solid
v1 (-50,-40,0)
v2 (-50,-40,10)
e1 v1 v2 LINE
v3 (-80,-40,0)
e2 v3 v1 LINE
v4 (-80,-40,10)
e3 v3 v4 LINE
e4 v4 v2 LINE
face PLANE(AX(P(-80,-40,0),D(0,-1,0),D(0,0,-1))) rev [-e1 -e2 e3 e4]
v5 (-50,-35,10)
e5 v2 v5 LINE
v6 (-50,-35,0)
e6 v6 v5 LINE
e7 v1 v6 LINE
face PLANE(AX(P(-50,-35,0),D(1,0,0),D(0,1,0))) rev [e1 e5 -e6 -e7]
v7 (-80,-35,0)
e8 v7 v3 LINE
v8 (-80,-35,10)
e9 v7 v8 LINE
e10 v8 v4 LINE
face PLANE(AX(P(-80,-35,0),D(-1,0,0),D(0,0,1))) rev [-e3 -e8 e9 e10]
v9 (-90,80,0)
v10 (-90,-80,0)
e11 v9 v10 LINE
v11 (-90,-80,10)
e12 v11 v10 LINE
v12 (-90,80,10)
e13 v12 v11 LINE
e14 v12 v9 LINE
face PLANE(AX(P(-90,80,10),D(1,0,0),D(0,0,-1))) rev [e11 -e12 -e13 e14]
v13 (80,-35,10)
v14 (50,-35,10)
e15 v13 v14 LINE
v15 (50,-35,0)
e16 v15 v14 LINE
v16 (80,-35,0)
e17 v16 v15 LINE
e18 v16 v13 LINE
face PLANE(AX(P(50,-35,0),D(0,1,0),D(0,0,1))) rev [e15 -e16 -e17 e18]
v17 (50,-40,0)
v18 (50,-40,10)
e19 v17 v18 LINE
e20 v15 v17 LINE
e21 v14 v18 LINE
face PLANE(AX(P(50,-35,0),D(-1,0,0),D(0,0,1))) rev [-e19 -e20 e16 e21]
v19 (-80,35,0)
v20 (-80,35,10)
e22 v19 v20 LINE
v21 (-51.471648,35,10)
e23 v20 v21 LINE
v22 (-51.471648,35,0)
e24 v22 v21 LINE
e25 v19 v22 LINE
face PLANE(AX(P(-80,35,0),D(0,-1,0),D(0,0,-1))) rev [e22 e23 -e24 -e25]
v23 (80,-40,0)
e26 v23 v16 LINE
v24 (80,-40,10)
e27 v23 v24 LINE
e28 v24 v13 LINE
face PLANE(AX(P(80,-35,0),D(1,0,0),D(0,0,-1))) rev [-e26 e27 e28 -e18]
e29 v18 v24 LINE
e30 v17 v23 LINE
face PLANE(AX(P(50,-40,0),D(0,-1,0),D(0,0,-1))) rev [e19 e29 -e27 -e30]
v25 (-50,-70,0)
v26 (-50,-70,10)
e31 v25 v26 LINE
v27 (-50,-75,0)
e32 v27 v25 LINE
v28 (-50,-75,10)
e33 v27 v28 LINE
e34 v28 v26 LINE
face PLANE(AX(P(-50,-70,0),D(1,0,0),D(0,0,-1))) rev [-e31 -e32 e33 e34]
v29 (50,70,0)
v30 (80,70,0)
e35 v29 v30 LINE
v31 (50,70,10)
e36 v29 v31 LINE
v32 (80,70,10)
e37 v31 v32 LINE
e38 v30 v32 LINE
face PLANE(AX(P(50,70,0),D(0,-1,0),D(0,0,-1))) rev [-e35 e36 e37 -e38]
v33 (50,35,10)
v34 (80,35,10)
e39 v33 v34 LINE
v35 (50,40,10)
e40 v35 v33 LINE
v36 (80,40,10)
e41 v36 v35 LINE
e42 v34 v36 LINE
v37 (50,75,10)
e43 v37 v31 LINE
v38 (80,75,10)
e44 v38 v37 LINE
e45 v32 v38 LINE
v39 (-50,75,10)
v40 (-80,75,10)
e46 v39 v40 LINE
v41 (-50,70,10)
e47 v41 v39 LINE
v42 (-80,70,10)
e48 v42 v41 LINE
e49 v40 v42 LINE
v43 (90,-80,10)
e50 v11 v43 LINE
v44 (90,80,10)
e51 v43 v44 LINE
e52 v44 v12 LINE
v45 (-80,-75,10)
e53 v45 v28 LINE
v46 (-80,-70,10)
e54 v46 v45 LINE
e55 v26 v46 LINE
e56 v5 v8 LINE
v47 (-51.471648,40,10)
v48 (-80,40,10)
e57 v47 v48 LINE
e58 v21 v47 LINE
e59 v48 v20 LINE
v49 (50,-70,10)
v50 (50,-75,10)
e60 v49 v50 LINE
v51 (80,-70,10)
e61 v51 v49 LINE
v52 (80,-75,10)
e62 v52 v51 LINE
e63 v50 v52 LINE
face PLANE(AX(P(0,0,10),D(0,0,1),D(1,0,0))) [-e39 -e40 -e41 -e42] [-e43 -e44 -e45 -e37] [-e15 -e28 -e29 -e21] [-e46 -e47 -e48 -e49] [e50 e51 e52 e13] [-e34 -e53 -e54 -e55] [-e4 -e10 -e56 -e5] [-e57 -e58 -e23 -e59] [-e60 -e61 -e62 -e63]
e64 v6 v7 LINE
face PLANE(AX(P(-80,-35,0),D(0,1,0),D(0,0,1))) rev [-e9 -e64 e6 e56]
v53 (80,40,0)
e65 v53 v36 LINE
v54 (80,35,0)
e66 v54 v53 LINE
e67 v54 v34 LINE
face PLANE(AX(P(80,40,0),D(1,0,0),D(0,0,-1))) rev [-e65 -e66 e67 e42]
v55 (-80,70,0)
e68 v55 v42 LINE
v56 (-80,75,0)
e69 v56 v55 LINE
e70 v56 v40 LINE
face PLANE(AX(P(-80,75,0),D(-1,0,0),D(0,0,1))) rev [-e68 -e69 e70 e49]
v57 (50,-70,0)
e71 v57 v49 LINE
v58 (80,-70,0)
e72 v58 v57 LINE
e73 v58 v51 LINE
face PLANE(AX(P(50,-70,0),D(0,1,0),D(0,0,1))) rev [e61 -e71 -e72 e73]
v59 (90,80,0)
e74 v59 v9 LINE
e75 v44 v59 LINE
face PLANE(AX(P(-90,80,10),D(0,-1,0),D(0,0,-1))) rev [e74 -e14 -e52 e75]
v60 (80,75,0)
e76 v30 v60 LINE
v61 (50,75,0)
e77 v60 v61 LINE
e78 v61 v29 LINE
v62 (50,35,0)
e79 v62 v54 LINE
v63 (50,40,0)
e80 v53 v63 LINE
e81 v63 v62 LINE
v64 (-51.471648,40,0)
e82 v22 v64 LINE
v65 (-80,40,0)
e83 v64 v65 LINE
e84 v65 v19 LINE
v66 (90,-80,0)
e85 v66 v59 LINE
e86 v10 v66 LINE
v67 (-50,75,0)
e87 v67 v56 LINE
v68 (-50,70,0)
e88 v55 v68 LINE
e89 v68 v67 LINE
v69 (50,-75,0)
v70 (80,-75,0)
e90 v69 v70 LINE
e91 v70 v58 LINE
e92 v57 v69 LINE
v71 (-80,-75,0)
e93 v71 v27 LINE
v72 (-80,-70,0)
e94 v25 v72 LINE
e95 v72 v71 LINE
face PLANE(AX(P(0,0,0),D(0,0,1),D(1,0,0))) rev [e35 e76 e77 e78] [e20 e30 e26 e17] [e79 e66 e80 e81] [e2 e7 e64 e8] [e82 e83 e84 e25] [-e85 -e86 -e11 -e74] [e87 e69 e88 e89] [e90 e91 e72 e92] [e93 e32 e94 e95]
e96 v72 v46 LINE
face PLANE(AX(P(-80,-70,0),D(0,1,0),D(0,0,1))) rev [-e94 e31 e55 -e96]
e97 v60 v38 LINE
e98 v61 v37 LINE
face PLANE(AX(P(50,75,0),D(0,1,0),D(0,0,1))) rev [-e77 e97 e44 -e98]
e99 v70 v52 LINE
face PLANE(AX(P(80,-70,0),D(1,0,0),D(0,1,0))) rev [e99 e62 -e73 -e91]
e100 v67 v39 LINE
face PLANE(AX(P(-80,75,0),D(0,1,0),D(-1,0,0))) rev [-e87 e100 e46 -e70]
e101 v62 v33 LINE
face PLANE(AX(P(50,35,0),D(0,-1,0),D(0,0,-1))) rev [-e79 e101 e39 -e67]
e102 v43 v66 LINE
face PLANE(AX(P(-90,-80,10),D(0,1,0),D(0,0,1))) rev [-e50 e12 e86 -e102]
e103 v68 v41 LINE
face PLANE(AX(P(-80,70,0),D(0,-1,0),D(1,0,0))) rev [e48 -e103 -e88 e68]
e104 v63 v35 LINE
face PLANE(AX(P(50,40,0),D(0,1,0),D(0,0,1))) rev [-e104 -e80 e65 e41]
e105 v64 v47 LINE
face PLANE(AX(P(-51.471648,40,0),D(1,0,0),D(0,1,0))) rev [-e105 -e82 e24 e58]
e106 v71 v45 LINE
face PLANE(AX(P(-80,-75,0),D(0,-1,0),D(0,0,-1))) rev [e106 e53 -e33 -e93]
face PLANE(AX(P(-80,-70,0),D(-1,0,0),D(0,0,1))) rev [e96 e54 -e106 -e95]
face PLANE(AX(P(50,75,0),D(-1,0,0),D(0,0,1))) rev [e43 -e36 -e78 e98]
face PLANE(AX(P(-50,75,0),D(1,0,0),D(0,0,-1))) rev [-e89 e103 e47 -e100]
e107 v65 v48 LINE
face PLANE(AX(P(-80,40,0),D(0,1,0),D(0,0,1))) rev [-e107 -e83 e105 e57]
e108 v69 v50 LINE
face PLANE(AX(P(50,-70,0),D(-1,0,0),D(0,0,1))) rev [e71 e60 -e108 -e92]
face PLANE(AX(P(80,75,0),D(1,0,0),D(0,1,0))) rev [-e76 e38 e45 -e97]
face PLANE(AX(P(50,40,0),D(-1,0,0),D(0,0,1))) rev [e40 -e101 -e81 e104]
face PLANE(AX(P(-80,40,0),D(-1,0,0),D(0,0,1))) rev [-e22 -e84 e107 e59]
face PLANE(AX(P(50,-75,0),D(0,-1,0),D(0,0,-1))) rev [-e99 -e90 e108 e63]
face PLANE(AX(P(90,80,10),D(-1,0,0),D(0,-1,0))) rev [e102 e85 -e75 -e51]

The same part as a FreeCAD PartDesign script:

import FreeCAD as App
import Part
import Sketcher

V = App.Vector
Q = App.Units.Quantity


def add_polygon(sketch, points):
    """Adds a closed chain of lines whose ends are joined by coincident constraints."""
    first, n = sketch.GeometryCount, len(points)
    for a, b in zip(points, points[1:] + points[:1]):
        sketch.addGeometry(Part.LineSegment(App.Vector(*a, 0), App.Vector(*b, 0)), False)
    for i in range(n):
        sketch.addConstraint(Sketcher.Constraint("Coincident", first + i, 2, first + (i + 1) % n, 1))

doc = App.newDocument("Part")
body = doc.addObject("PartDesign::Body", "Body")

# Sketch on XY plane
sketch1 = doc.addObject("Sketcher::SketchObject", "Sketch")
body.addObject(sketch1)
sketch1.AttachmentSupport = (doc.XY_Plane, [""])
sketch1.MapMode = "FlatFace"
add_polygon(sketch1, [(-90, 80), (-90, -80), (90, -80), (90, 80)])  # lines 0-3
sketch1.addConstraint([
    Sketcher.Constraint("Vertical", 0),
    Sketcher.Constraint("Horizontal", 1),
    Sketcher.Constraint("Vertical", 2),
    Sketcher.Constraint("Horizontal", 3),
    Sketcher.Constraint("Symmetric", 0, 2, 2, 2, -1, 1),
    Sketcher.Constraint("DistanceX", 1, 1, 1, 2, Q("180 mm")),
    Sketcher.Constraint("DistanceY", 0, 2, 0, 1, Q("160 mm")),
])
pad1 = doc.addObject("PartDesign::Pad", "Pad")
body.addObject(pad1)
pad1.Profile = sketch1
pad1.Length = 10

# Sketch on XY plane
sketch2 = doc.addObject("Sketcher::SketchObject", "Sketch001")
body.addObject(sketch2)
sketch2.AttachmentSupport = (doc.XY_Plane, [""])
sketch2.MapMode = "FlatFace"
sketch2.AttachmentOffset = App.Placement(V(0, 0, 10), App.Rotation())
add_polygon(sketch2, [(-80, 75), (-80, 70), (-50, 70), (-50, 75)])  # lines 0-3
add_polygon(sketch2, [(50, 75), (50, 70), (80, 70), (80, 75)])  # lines 4-7
add_polygon(sketch2, [(-80, 40), (-80, 35), (-51, 35), (-51, 40)])  # lines 8-11
add_polygon(sketch2, [(50, 40), (50, 35), (80, 35), (80, 40)])  # lines 12-15
add_polygon(sketch2, [(-80, -35), (-80, -40), (-50, -40), (-50, -35)])  # lines 16-19
add_polygon(sketch2, [(50, -35), (50, -40), (80, -40), (80, -35)])  # lines 20-23
add_polygon(sketch2, [(-80, -70), (-80, -75), (-50, -75), (-50, -70)])  # lines 24-27
add_polygon(sketch2, [(50, -70), (50, -75), (80, -75), (80, -70)])  # lines 28-31
sketch2.addConstraint([
    Sketcher.Constraint("Vertical", 0),
    Sketcher.Constraint("Horizontal", 1),
    Sketcher.Constraint("Vertical", 2),
    Sketcher.Constraint("Horizontal", 3),
    Sketcher.Constraint("Vertical", 4),
    Sketcher.Constraint("Horizontal", 5),
    Sketcher.Constraint("Vertical", 6),
    Sketcher.Constraint("Horizontal", 7),
    Sketcher.Constraint("Vertical", 8),
    Sketcher.Constraint("Horizontal", 9),
    Sketcher.Constraint("Vertical", 10),
    Sketcher.Constraint("Horizontal", 11),
    Sketcher.Constraint("Vertical", 12),
    Sketcher.Constraint("Horizontal", 13),
    Sketcher.Constraint("Vertical", 14),
    Sketcher.Constraint("Horizontal", 15),
    Sketcher.Constraint("Vertical", 16),
    Sketcher.Constraint("Horizontal", 17),
    Sketcher.Constraint("Vertical", 18),
    Sketcher.Constraint("Horizontal", 19),
    Sketcher.Constraint("Vertical", 20),
    Sketcher.Constraint("Horizontal", 21),
    Sketcher.Constraint("Vertical", 22),
    Sketcher.Constraint("Horizontal", 23),
    Sketcher.Constraint("Vertical", 24),
    Sketcher.Constraint("Horizontal", 25),
    Sketcher.Constraint("Vertical", 26),
    Sketcher.Constraint("Horizontal", 27),
    Sketcher.Constraint("Vertical", 28),
    Sketcher.Constraint("Horizontal", 29),
    Sketcher.Constraint("Vertical", 30),
    Sketcher.Constraint("Horizontal", 31),
    Sketcher.Constraint("Symmetric", 14, 2, 16, 2, -1, 1),
    Sketcher.Constraint("Symmetric", 12, 2, 18, 2, -1, 1),
    Sketcher.Constraint("Symmetric", 11, 2, 21, 2, -1, 1),
    Sketcher.Constraint("Symmetric", 6, 2, 24, 2, -1, 1),
    Sketcher.Constraint("Symmetric", 4, 2, 26, 2, -1, 1),
    Sketcher.Constraint("Symmetric", 2, 2, 28, 2, -1, 1),
    Sketcher.Constraint("Symmetric", 0, 2, 30, 2, -1, 1),
    Sketcher.Constraint("Symmetric", 1, 2, 4, 2, -2),
    Sketcher.Constraint("Symmetric", 3, 2, 6, 2, -2),
    Sketcher.Constraint("Symmetric", 8, 2, 13, 2, -2),
    Sketcher.Constraint("Symmetric", 17, 2, 20, 2, -2),
    Sketcher.Constraint("Horizontal", 19, 2, 22, 2),
    Sketcher.Constraint("Vertical", 3, 2, 8, 2),
    Sketcher.Constraint("Vertical", 7, 2, 12, 2),
    Sketcher.Constraint("Equal", 6, 8),
    Sketcher.Constraint("DistanceX", 1, 1, 1, 2, Q("30 mm")),
    Sketcher.Constraint("DistanceY", 0, 2, 0, 1, Q("5 mm")),
    Sketcher.Constraint("DistanceX", 0, 2, -1, 1, Q("80 mm")),
    Sketcher.Constraint("DistanceY", -1, 1, 0, 2, Q("70 mm")),
    Sketcher.Constraint("DistanceY", -1, 1, 8, 2, Q("35 mm")),
    Sketcher.Constraint("DistanceX", 9, 1, 9, 2, Q("28.528352 mm")),
])
pocket1 = doc.addObject("PartDesign::Pocket", "Pocket")
body.addObject(pocket1)
pocket1.Profile = sketch2
pocket1.Type = "ThroughAll"

doc.recompute()
